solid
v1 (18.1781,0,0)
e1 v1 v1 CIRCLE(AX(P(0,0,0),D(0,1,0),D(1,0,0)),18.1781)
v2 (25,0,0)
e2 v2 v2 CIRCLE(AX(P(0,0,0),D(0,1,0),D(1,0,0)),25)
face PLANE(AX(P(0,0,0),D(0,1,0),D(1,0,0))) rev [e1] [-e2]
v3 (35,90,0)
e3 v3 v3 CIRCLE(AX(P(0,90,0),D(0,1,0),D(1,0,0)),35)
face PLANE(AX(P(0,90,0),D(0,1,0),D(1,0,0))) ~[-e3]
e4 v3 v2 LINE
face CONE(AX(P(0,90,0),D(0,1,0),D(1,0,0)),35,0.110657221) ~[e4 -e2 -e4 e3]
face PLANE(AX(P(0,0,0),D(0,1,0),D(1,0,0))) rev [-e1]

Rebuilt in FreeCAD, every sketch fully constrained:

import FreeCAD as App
import Part
import Sketcher
from FreeCAD import Vector

doc = App.newDocument("Part")
body = doc.addObject("PartDesign::Body", "Body")

# Sketch on XY plane
sketch1 = body.newObject("Sketcher::SketchObject", "Sketch")
sketch1.AttachmentSupport = (doc.getObject("XY_Plane"), [""])
sketch1.MapMode = "FlatFace"
sketch1.addGeometry([
    Part.LineSegment(Vector(0, 90, 0), Vector(0, 0, 0)),
    Part.LineSegment(Vector(0, 0, 0), Vector(25, 0, 0)),
    Part.LineSegment(Vector(25, 0, 0), Vector(35, 90, 0)),
    Part.LineSegment(Vector(35, 90, 0), Vector(0, 90, 0)),
], False)
sketch1.addConstraint([
    Sketcher.Constraint("Coincident", 0, 2, 1, 1),
    Sketcher.Constraint("Coincident", 1, 2, 2, 1),
    Sketcher.Constraint("Coincident", 2, 2, 3, 1),
    Sketcher.Constraint("Coincident", 3, 2, 0, 1),
    Sketcher.Constraint("Vertical", 0),
    Sketcher.Constraint("Horizontal", 1),
    Sketcher.Constraint("Horizontal", 3),
    Sketcher.Constraint("Coincident", 0, 2, -1, 1),
    Sketcher.Constraint("DistanceX", 1, 1, 1, 2, 25.0),
    Sketcher.Constraint("DistanceX", 3, 2, 3, 1, 35.0),
    Sketcher.Constraint("DistanceY", 0, 2, 0, 1, 90.0),
])
revolution = body.newObject("PartDesign::Revolution", "Revolution")
revolution.Profile = sketch1
revolution.ReferenceAxis = (sketch1, ["V_Axis"])
revolution.Angle = 360

doc.recompute()
